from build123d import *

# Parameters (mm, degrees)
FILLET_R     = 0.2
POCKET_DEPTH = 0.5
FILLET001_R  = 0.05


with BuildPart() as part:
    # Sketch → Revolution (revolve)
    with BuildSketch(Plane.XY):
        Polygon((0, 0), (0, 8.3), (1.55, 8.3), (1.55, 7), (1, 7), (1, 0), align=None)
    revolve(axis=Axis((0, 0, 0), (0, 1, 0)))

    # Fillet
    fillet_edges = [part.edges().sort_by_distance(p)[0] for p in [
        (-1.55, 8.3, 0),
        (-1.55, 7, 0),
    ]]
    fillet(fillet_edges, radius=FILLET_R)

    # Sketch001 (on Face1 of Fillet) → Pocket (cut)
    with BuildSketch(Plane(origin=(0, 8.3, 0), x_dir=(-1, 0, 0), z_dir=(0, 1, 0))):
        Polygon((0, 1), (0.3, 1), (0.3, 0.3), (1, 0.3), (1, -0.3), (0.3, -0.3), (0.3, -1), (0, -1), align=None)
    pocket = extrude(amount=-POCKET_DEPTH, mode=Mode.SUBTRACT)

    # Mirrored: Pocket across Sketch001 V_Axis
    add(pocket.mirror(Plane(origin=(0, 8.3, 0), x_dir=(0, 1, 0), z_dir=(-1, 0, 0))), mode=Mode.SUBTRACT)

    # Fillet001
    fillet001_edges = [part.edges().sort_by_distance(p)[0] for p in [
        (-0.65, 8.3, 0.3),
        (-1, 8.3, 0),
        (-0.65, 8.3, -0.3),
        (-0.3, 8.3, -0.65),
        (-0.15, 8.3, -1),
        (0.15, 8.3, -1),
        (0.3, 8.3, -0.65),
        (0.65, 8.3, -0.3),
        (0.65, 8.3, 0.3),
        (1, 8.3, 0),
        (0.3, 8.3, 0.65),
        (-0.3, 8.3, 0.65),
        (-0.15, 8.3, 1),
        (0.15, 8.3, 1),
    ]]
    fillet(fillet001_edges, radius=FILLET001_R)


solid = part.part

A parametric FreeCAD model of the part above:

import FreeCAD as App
import Part
import Sketcher
from FreeCAD import Vector
Q = App.Units.Quantity


def edges_at(feature, points):
    """Names of the edges that pass closest to the given points."""
    edges = feature.Shape.Edges
    near = lambda p: min(range(len(edges)), key=lambda i: edges[i].distToShape(Part.Vertex(*p))[0])
    return sorted({f"Edge{near(p) + 1}" for p in points})


def add_polygon(sketch, points):
    """Adds a closed chain of lines whose ends are joined by coincident constraints."""
    first, n = sketch.GeometryCount, len(points)
    for a, b in zip(points, points[1:] + points[:1]):
        sketch.addGeometry(Part.LineSegment(App.Vector(*a, 0), App.Vector(*b, 0)), False)
    for i in range(n):
        sketch.addConstraint(Sketcher.Constraint("Coincident", first + i, 2, first + (i + 1) % n, 1))

doc = App.newDocument("Part")
body = doc.addObject("PartDesign::Body", "Body")

# Sketch on XY plane
sketch1 = body.newObject("Sketcher::SketchObject", "Sketch")
sketch1.AttachmentSupport = (doc.getObject("XY_Plane"), [""])
sketch1.MapMode = "FlatFace"
add_polygon(sketch1, [(0, 8.3), (0, 0), (1, 0), (1, 7), (1.55, 7), (1.55, 8.3)])  # lines 0-5
sketch1.addConstraint([
    Sketcher.Constraint("Vertical", 0),
    Sketcher.Constraint("Horizontal", 1),
    Sketcher.Constraint("Vertical", 2),
    Sketcher.Constraint("Horizontal", 3),
    Sketcher.Constraint("Vertical", 4),
    Sketcher.Constraint("Horizontal", 5),
    Sketcher.Constraint("Coincident", 0, 2, -1, 1),
    Sketcher.Constraint("DistanceX", 1, 1, 1, 2, Q("1 mm")),
    Sketcher.Constraint("DistanceY", 2, 1, 2, 2, Q("7 mm")),
    Sketcher.Constraint("DistanceY", 0, 2, 0, 1, Q("8.3 mm")),
    Sketcher.Constraint("DistanceX", 3, 1, 3, 2, Q("0.55 mm")),
])
revolution = body.newObject("PartDesign::Revolution", "Revolution")
revolution.Profile = sketch1
revolution.ReferenceAxis = (sketch1, ["V_Axis"])
revolution.Angle = 360
doc.recompute()

fillet = body.newObject("PartDesign::Fillet", "Fillet")
fillet.Base = (revolution, edges_at(revolution, [(-1.55, 8.3, 0), (-1.55, 7, 0)]))
fillet.Radius = 0.2

# Sketch on XZ plane
sketch2 = body.newObject("Sketcher::SketchObject", "Sketch001")
sketch2.AttachmentSupport = (doc.getObject("XZ_Plane"), [""])
sketch2.MapMode = "FlatFace"
sketch2.AttachmentOffset = App.Placement(Vector(0, 0, -8.3), App.Rotation())
add_polygon(sketch2, [(-0.3, 1), (0, 1), (0, -1), (-0.3, -1), (-0.3, -0.3), (-1, -0.3), (-1, 0.3), (-0.3, 0.3)])  # lines 0-7
sketch2.addConstraint([
    Sketcher.Constraint("Horizontal", 0),
    Sketcher.Constraint("Vertical", 1),
    Sketcher.Constraint("Horizontal", 2),
    Sketcher.Constraint("Vertical", 3),
    Sketcher.Constraint("Horizontal", 4),
    Sketcher.Constraint("Vertical", 5),
    Sketcher.Constraint("Horizontal", 6),
    Sketcher.Constraint("Vertical", 7),
    Sketcher.Constraint("Symmetric", 0, 2, 1, 2, -1, 1),
    Sketcher.Constraint("Symmetric", 3, 2, 6, 2, -1),
    Sketcher.Constraint("Equal", 6, 3),
    Sketcher.Constraint("DistanceY", 1, 2, 1, 1, Q("2 mm")),
    Sketcher.Constraint("DistanceX", 0, 1, 0, 2, Q("0.3 mm")),
    Sketcher.Constraint("DistanceX", 4, 2, 4, 1, Q("0.7 mm")),
])
pocket1 = body.newObject("PartDesign::Pocket", "Pocket")
pocket1.Profile = sketch2
pocket1.Length = 0.5
pocket1.Reversed = True
doc.recompute()

mirrored = body.newObject("PartDesign::Mirrored", "Mirrored")
mirrored.Originals = [pocket1]
mirrored.MirrorPlane = (doc.getObject("YZ_Plane"), [""])
body.Tip = mirrored
doc.recompute()

fillet2 = body.newObject("PartDesign::Fillet", "Fillet001")
fillet2.Base = (mirrored, edges_at(mirrored, [
    (-0.65, 8.3, 0.3),
    (-1, 8.3, 0),
    (-0.65, 8.3, -0.3),
    (-0.3, 8.3, -0.65),
    (0, 8.3, -1),
    (0, 8.3, -1),
    (0.3, 8.3, -0.65),
    (0.65, 8.3, -0.3),
    (0.65, 8.3, 0.3),
    (1, 8.3, 0),
    (0.3, 8.3, 0.65),
    (-0.3, 8.3, 0.65),
    (0, 8.3, 1),
    (0, 8.3, 1),
]))
fillet2.Radius = 0.05

doc.recompute()
